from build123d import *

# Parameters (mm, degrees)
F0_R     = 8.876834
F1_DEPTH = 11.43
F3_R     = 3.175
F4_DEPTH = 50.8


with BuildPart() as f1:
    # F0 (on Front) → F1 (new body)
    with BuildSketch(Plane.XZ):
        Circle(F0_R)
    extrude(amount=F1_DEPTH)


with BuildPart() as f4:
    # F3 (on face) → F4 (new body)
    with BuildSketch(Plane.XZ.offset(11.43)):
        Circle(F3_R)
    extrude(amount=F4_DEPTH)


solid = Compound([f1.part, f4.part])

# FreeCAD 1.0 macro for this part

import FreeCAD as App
import Part
import Sketcher
Q = App.Units.Quantity

doc = App.newDocument("Part")
body = doc.addObject("PartDesign::Body", "Body")

# Sketch on XZ plane
sketch1 = body.newObject("Sketcher::SketchObject", "Sketch")
sketch1.AttachmentSupport = (doc.getObject("XZ_Plane"), [""])
sketch1.MapMode = "FlatFace"
sketch1.addGeometry(Part.Circle(App.Vector(0, 0, 0), App.Vector(0, 0, 1), 9), False)
sketch1.addConstraint([
    Sketcher.Constraint("Coincident", 0, 3, -1, 1),
    Sketcher.Constraint("Diameter", 0, 17.753668),
])
pad1 = body.newObject("PartDesign::Pad", "Pad")
pad1.Profile = sketch1
pad1.Length = Q("0.45 in")
body2 = doc.addObject("PartDesign::Body", "Body001")

# Sketch on XZ plane
sketch2 = body2.newObject("Sketcher::SketchObject", "Sketch001")
sketch2.AttachmentSupport = (doc.getObject("XZ_Plane001"), [""])
sketch2.MapMode = "FlatFace"
sketch2.AttachmentOffset = App.Placement(App.Vector(0, 0, 0.45 * 25.4), App.Rotation())
sketch2.addGeometry(Part.Circle(App.Vector(0, 0, 0), App.Vector(0, 0, 1), 3.2), False)
sketch2.addConstraint([
    Sketcher.Constraint("Coincident", 0, 3, -1, 1),
    Sketcher.Constraint("Diameter", 0, Q("0.25 in")),
])
pad2 = body2.newObject("PartDesign::Pad", "Pad001")
pad2.Profile = sketch2
pad2.Length = Q("2 in")

doc.recompute()
